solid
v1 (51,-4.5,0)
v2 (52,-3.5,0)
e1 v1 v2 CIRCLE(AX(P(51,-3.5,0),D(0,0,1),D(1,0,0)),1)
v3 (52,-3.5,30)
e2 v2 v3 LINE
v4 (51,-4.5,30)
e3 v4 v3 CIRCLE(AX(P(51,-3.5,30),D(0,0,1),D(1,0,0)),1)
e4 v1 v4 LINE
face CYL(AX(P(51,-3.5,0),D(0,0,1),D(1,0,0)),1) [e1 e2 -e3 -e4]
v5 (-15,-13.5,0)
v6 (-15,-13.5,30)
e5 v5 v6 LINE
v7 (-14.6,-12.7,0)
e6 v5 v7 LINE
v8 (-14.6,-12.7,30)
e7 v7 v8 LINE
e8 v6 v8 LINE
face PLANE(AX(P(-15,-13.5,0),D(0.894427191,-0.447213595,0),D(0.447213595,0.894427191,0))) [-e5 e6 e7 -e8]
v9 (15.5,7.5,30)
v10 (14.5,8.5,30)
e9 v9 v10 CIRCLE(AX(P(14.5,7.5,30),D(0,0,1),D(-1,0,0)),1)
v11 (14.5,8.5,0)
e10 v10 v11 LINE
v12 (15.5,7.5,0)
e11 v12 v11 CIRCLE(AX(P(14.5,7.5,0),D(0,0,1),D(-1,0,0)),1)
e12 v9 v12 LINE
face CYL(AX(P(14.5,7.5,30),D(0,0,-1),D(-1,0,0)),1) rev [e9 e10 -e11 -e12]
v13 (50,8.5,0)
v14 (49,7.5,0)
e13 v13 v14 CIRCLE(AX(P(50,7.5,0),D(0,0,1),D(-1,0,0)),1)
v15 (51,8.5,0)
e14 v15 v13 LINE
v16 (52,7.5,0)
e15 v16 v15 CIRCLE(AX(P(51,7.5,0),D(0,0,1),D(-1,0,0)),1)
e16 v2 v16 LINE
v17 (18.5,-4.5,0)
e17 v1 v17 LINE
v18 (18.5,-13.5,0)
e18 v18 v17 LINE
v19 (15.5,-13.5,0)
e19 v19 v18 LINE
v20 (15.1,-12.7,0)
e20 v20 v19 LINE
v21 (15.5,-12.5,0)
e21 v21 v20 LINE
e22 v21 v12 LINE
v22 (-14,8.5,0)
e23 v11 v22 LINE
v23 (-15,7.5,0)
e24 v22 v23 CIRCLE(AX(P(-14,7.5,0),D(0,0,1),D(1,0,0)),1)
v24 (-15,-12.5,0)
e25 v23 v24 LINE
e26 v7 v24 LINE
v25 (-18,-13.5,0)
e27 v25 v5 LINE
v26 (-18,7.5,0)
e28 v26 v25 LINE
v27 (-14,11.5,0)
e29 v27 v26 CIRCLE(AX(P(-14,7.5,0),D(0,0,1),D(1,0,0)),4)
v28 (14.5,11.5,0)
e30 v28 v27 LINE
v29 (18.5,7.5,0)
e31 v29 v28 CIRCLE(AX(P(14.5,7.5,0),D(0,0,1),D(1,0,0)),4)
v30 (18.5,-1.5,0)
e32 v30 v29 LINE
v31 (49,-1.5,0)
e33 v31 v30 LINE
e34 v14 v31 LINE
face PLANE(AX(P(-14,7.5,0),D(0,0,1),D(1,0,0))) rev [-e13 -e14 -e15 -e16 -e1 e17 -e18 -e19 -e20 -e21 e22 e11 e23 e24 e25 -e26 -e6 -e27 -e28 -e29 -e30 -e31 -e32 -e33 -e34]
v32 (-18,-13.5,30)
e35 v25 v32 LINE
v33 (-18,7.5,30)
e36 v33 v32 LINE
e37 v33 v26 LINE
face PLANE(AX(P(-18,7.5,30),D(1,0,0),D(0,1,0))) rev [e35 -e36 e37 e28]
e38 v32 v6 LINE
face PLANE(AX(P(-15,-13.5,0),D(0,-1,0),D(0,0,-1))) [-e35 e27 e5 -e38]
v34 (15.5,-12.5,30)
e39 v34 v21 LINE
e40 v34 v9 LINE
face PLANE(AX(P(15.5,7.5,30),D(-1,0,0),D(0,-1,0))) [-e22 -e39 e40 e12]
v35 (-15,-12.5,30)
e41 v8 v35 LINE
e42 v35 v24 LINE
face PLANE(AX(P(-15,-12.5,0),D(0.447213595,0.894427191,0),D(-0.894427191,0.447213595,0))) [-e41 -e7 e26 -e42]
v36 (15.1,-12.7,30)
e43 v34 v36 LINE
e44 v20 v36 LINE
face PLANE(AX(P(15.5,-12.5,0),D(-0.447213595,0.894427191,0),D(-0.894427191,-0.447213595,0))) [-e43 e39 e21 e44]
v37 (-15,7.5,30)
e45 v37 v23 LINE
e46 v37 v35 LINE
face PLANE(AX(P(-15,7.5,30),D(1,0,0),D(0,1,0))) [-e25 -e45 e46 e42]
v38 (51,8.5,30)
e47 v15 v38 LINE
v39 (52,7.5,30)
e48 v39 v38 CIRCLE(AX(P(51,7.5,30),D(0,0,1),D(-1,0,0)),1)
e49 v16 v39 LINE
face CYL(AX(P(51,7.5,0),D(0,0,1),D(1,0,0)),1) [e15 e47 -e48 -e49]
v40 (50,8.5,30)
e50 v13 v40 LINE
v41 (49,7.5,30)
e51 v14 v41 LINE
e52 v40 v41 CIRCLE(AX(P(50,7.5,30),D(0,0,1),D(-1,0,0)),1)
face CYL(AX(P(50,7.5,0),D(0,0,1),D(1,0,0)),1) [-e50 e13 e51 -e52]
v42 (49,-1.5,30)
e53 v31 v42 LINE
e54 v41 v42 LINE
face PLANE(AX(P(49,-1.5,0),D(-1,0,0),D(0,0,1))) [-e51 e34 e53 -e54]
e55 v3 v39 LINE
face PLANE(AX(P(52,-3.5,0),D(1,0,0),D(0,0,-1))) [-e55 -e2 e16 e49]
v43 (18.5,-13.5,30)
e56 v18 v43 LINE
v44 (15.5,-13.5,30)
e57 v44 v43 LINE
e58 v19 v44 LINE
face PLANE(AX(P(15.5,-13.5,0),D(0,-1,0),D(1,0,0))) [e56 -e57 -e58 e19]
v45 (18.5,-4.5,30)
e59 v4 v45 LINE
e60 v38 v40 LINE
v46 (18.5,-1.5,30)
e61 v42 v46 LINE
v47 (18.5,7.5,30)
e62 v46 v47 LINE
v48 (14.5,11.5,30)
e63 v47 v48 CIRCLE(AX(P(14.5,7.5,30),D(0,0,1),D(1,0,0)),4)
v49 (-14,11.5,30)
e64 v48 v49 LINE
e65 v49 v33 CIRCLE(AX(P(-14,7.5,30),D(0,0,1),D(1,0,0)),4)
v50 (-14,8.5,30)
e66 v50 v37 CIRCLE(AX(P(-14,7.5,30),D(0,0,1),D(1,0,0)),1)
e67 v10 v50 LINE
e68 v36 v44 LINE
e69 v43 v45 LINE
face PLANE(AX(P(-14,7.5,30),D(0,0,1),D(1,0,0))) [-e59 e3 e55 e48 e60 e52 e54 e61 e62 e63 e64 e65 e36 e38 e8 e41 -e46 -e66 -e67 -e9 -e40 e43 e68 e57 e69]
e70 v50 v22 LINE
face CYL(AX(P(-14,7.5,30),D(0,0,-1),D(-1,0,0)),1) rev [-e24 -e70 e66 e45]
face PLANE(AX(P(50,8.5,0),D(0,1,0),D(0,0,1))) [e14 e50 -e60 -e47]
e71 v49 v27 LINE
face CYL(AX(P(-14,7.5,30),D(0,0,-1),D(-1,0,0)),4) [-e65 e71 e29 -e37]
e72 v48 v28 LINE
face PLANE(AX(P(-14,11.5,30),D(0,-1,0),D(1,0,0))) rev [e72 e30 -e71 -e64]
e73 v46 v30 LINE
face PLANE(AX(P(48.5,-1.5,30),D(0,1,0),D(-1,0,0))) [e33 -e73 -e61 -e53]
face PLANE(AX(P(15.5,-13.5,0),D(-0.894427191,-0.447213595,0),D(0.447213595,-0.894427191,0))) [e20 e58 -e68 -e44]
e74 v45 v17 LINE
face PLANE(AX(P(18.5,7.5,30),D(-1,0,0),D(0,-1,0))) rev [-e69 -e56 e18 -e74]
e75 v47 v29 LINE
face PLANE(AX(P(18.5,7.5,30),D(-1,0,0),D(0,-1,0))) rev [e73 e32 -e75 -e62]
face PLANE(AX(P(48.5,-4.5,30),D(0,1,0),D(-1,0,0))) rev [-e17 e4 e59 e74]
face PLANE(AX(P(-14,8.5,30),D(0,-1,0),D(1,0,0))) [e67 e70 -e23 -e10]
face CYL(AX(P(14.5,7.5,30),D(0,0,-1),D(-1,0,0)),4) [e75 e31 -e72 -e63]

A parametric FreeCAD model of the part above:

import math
import FreeCAD as App
import Part
import Sketcher

doc = App.newDocument("Part")
body = doc.addObject("PartDesign::Body", "Body")

# Sketch on XY plane
sketch1 = body.newObject("Sketcher::SketchObject", "Sketch")
sketch1.AttachmentSupport = (doc.getObject("XY_Plane"), [""])
sketch1.MapMode = "FlatFace"
sketch1.addGeometry([
    Part.LineSegment(App.Vector(-15, -12.5, 0), App.Vector(-15, 7.5, 0)),  # 0
    Part.ArcOfCircle(Part.Circle(App.Vector(-14, 7.5, 0), App.Vector(0, 0, 1), 1), math.radians(90), math.radians(180)),  # 1
    Part.LineSegment(App.Vector(-14, 8.5, 0), App.Vector(14.5, 8.5, 0)),  # 2
    Part.ArcOfCircle(Part.Circle(App.Vector(14.5, 7.5, 0), App.Vector(0, 0, 1), 1), math.radians(0), math.radians(90)),  # 3
    Part.LineSegment(App.Vector(15.5, 7.5, 0), App.Vector(15.5, -12.5, 0)),  # 4
    Part.LineSegment(App.Vector(15.5, -12.5, 0), App.Vector(18.5, -12.5, 0)),  # 5
    Part.LineSegment(App.Vector(18.5, -12.5, 0), App.Vector(18.5, 7.5, 0)),  # 6
    Part.ArcOfCircle(Part.Circle(App.Vector(14.5, 7.5, 0), App.Vector(0, 0, 1), 4), math.radians(0), math.radians(90)),  # 7
    Part.LineSegment(App.Vector(14.5, 11.5, 0), App.Vector(-14, 11.5, 0)),  # 8
    Part.ArcOfCircle(Part.Circle(App.Vector(-14, 7.5, 0), App.Vector(0, 0, 1), 4), math.radians(90), math.radians(180)),  # 9
    Part.LineSegment(App.Vector(-18, 7.5, 0), App.Vector(-18, -12.5, 0)),  # 10
    Part.LineSegment(App.Vector(-18, -12.5, 0), App.Vector(-15, -12.5, 0)),  # 11
], False)
sketch1.addConstraint([
    Sketcher.Constraint("Tangent", 0, 2, 1, 2),
    Sketcher.Constraint("Tangent", 1, 1, 2, 1),
    Sketcher.Constraint("Tangent", 2, 2, 3, 2),
    Sketcher.Constraint("Tangent", 3, 1, 4, 1),
    Sketcher.Constraint("Coincident", 4, 2, 5, 1),
    Sketcher.Constraint("Coincident", 5, 2, 6, 1),
    Sketcher.Constraint("Tangent", 6, 2, 7, 1),
    Sketcher.Constraint("Tangent", 7, 2, 8, 1),
    Sketcher.Constraint("Tangent", 8, 2, 9, 1),
    Sketcher.Constraint("Tangent", 9, 2, 10, 1),
    Sketcher.Constraint("Coincident", 10, 2, 11, 1),
    Sketcher.Constraint("Coincident", 11, 2, 0, 1),
    Sketcher.Constraint("Vertical", 0),
    Sketcher.Constraint("Horizontal", 2),
    Sketcher.Constraint("Vertical", 4),
    Sketcher.Constraint("Horizontal", 5),
    Sketcher.Constraint("Vertical", 6),
    Sketcher.Constraint("Horizontal", 8),
    Sketcher.Constraint("Vertical", 10),
    Sketcher.Constraint("Horizontal", 11),
    Sketcher.Constraint("Coincident", 7, 3, 3, 3),
    Sketcher.Constraint("Coincident", 9, 3, 1, 3),
    Sketcher.Constraint("Equal", 1, 3),
    Sketcher.Constraint("Horizontal", 5, 2, 10, 2),
    Sketcher.Constraint("Radius", 1, 1.0),
    Sketcher.Constraint("Radius", 7, 4.0),
    Sketcher.Constraint("DistanceY", 0, 1, 0, 2, 20.0),
    Sketcher.Constraint("DistanceX", 2, 1, 2, 2, 28.5),
    Sketcher.Constraint("DistanceX", 1, 3, -1, 1, 14.0),
    Sketcher.Constraint("DistanceY", -1, 1, 1, 3, 7.5),
])
pad1 = body.newObject("PartDesign::Pad", "Pad")
pad1.Profile = sketch1
pad1.Length = 30

# Sketch on XY plane
sketch2 = body.newObject("Sketcher::SketchObject", "Sketch001")
sketch2.AttachmentSupport = (doc.getObject("XY_Plane"), [""])
sketch2.MapMode = "FlatFace"
sketch2.AttachmentOffset = App.Placement(App.Vector(0, 0, 30), App.Rotation())
sketch2.addGeometry([
    Part.LineSegment(App.Vector(-18, -13.5, 0), App.Vector(-15, -13.5, 0)),  # 0
    Part.LineSegment(App.Vector(-15, -13.5, 0), App.Vector(-14.6, -12.7, 0)),  # 1
    Part.LineSegment(App.Vector(-14.6, -12.7, 0), App.Vector(-15, -12.5, 0)),  # 2
    Part.LineSegment(App.Vector(-15, -12.5, 0), App.Vector(-18, -12.5, 0)),  # 3
    Part.LineSegment(App.Vector(-18, -12.5, 0), App.Vector(-18, -13.5, 0)),  # 4
    Part.LineSegment(App.Vector(15.5, -12.5, 0), App.Vector(15.1, -12.7, 0)),  # 5
    Part.LineSegment(App.Vector(15.1, -12.7, 0), App.Vector(15.5, -13.5, 0)),  # 6
    Part.LineSegment(App.Vector(15.5, -13.5, 0), App.Vector(18.5, -13.5, 0)),  # 7
    Part.LineSegment(App.Vector(18.5, -13.5, 0), App.Vector(18.5, -12.5, 0)),  # 8
    Part.LineSegment(App.Vector(18.5, -12.5, 0), App.Vector(15.5, -12.5, 0)),  # 9
], False)
sketch2.addConstraint([
    Sketcher.Constraint("Coincident", 0, 2, 1, 1),
    Sketcher.Constraint("Coincident", 1, 2, 2, 1),
    Sketcher.Constraint("Coincident", 2, 2, 3, 1),
    Sketcher.Constraint("Coincident", 3, 2, 4, 1),
    Sketcher.Constraint("Coincident", 4, 2, 0, 1),
    Sketcher.Constraint("Coincident", 5, 2, 6, 1),
    Sketcher.Constraint("Coincident", 6, 2, 7, 1),
    Sketcher.Constraint("Coincident", 7, 2, 8, 1),
    Sketcher.Constraint("Coincident", 8, 2, 9, 1),
    Sketcher.Constraint("Coincident", 9, 2, 5, 1),
    Sketcher.Constraint("Horizontal", 0),
    Sketcher.Constraint("Horizontal", 3),
    Sketcher.Constraint("Vertical", 4),
    Sketcher.Constraint("Horizontal", 7),
    Sketcher.Constraint("Vertical", 8),
    Sketcher.Constraint("Horizontal", 9),
    Sketcher.Constraint("Perpendicular", 1, 2),
    Sketcher.Constraint("Perpendicular", 5, 6),
    Sketcher.Constraint("Horizontal", 1, 2, 5, 2),
    Sketcher.Constraint("Horizontal", 4, 2, 6, 2),
    Sketcher.Constraint("Horizontal", 3, 2, 8, 2),
    Sketcher.Constraint("Vertical", 0, 2, 2, 2),
    Sketcher.Constraint("Vertical", 6, 2, 9, 2),
    Sketcher.Constraint("Equal", 3, 7),
    Sketcher.Constraint("DistanceX", 0, 1, 0, 2, 3.0),
    Sketcher.Constraint("DistanceY", 4, 2, 4, 1, 1.0),
    Sketcher.Constraint("DistanceX", 0, 2, -1, 1, 15.0),
    Sketcher.Constraint("DistanceY", 0, 2, -1, 1, 13.5),
    Sketcher.Constraint("DistanceX", 1, 2, -1, 1, 14.6),
    Sketcher.Constraint("DistanceX", -1, 1, 5, 2, 15.1),
])
pad2 = body.newObject("PartDesign::Pad", "Pad001")
pad2.Profile = sketch2
pad2.Length = 30
pad2.Reversed = True

# Sketch on YZ plane
sketch3 = body.newObject("Sketcher::SketchObject", "Sketch002")
sketch3.AttachmentSupport = (doc.getObject("YZ_Plane"), [""])
sketch3.MapMode = "FlatFace"
sketch3.AttachmentOffset = App.Placement(App.Vector(0, 0, 18.5), App.Rotation())
sketch3.addGeometry([
    Part.LineSegment(App.Vector(-1.5, 30, 0), App.Vector(-4.5, 30, 0)),
    Part.LineSegment(App.Vector(-4.5, 30, 0), App.Vector(-4.5, 0, 0)),
    Part.LineSegment(App.Vector(-4.5, 0, 0), App.Vector(-1.5, 0, 0)),
    Part.LineSegment(App.Vector(-1.5, 0, 0), App.Vector(-1.5, 30, 0)),
], False)
sketch3.addConstraint([
    Sketcher.Constraint("Coincident", 0, 2, 1, 1),
    Sketcher.Constraint("Coincident", 1, 2, 2, 1),
    Sketcher.Constraint("Coincident", 2, 2, 3, 1),
    Sketcher.Constraint("Coincident", 3, 2, 0, 1),
    Sketcher.Constraint("Horizontal", 0),
    Sketcher.Constraint("Vertical", 1),
    Sketcher.Constraint("Horizontal", 2),
    Sketcher.Constraint("Vertical", 3),
    Sketcher.Constraint("PointOnObject", 1, 2, -1),
    Sketcher.Constraint("DistanceX", 0, 2, 0, 1, 3.0),
    Sketcher.Constraint("DistanceY", 1, 2, 1, 1, 30.0),
    Sketcher.Constraint("DistanceX", 0, 2, -1, 1, 4.5),
])
pad3 = body.newObject("PartDesign::Pad", "Pad002")
pad3.Profile = sketch3
pad3.Length = 30

# Sketch on XY plane
sketch4 = body.newObject("Sketcher::SketchObject", "Sketch003")
sketch4.AttachmentSupport = (doc.getObject("XY_Plane"), [""])
sketch4.MapMode = "FlatFace"
sketch4.AttachmentOffset = App.Placement(App.Vector(0, 0, 30), App.Rotation())
sketch4.addGeometry([
    Part.LineSegment(App.Vector(49, -1.5, 0), App.Vector(48.5, -1.5, 0)),  # 0
    Part.LineSegment(App.Vector(48.5, -1.5, 0), App.Vector(48.5, -4.5, 0)),  # 1
    Part.LineSegment(App.Vector(48.5, -4.5, 0), App.Vector(51, -4.5, 0)),  # 2
    Part.ArcOfCircle(Part.Circle(App.Vector(51, -3.5, 0), App.Vector(0, 0, 1), 1), math.radians(-90), math.radians(0)),  # 3
    Part.LineSegment(App.Vector(52, -3.5, 0), App.Vector(52, 7.5, 0)),  # 4
    Part.ArcOfCircle(Part.Circle(App.Vector(51, 7.5, 0), App.Vector(0, 0, 1), 1), math.radians(0), math.radians(90)),  # 5
    Part.LineSegment(App.Vector(51, 8.5, 0), App.Vector(50, 8.5, 0)),  # 6
    Part.ArcOfCircle(Part.Circle(App.Vector(50, 7.5, 0), App.Vector(0, 0, 1), 1), math.radians(90), math.radians(180)),  # 7
    Part.LineSegment(App.Vector(49, 7.5, 0), App.Vector(49, -1.5, 0)),  # 8
], False)
sketch4.addConstraint([
    Sketcher.Constraint("Coincident", 0, 2, 1, 1),
    Sketcher.Constraint("Coincident", 1, 2, 2, 1),
    Sketcher.Constraint("Tangent", 2, 2, 3, 1),
    Sketcher.Constraint("Tangent", 3, 2, 4, 1),
    Sketcher.Constraint("Tangent", 4, 2, 5, 1),
    Sketcher.Constraint("Tangent", 5, 2, 6, 1),
    Sketcher.Constraint("Tangent", 6, 2, 7, 1),
    Sketcher.Constraint("Tangent", 7, 2, 8, 1),
    Sketcher.Constraint("Coincident", 8, 2, 0, 1),
    Sketcher.Constraint("Horizontal", 0),
    Sketcher.Constraint("Vertical", 1),
    Sketcher.Constraint("Horizontal", 2),
    Sketcher.Constraint("Vertical", 4),
    Sketcher.Constraint("Horizontal", 6),
    Sketcher.Constraint("Vertical", 8),
    Sketcher.Constraint("Equal", 3, 5),
    Sketcher.Constraint("Equal", 5, 7),
    Sketcher.Constraint("Radius", 3, 1.0),
    Sketcher.Constraint("DistanceX", 6, 2, 6, 1, 1.0),
    Sketcher.Constraint("DistanceY", 1, 2, 1, 1, 3.0),
    Sketcher.Constraint("DistanceY", 4, 1, 4, 2, 11.0),
    Sketcher.Constraint("DistanceX", 0, 2, 0, 1, 0.5),
    Sketcher.Constraint("DistanceX", -1, 1, 3, 3, 51.0),
    Sketcher.Constraint("DistanceY", 3, 3, -1, 1, 3.5),
])
pad4 = body.newObject("PartDesign::Pad", "Pad003")
pad4.Profile = sketch4
pad4.Length = 30
pad4.Reversed = True

doc.recompute()
